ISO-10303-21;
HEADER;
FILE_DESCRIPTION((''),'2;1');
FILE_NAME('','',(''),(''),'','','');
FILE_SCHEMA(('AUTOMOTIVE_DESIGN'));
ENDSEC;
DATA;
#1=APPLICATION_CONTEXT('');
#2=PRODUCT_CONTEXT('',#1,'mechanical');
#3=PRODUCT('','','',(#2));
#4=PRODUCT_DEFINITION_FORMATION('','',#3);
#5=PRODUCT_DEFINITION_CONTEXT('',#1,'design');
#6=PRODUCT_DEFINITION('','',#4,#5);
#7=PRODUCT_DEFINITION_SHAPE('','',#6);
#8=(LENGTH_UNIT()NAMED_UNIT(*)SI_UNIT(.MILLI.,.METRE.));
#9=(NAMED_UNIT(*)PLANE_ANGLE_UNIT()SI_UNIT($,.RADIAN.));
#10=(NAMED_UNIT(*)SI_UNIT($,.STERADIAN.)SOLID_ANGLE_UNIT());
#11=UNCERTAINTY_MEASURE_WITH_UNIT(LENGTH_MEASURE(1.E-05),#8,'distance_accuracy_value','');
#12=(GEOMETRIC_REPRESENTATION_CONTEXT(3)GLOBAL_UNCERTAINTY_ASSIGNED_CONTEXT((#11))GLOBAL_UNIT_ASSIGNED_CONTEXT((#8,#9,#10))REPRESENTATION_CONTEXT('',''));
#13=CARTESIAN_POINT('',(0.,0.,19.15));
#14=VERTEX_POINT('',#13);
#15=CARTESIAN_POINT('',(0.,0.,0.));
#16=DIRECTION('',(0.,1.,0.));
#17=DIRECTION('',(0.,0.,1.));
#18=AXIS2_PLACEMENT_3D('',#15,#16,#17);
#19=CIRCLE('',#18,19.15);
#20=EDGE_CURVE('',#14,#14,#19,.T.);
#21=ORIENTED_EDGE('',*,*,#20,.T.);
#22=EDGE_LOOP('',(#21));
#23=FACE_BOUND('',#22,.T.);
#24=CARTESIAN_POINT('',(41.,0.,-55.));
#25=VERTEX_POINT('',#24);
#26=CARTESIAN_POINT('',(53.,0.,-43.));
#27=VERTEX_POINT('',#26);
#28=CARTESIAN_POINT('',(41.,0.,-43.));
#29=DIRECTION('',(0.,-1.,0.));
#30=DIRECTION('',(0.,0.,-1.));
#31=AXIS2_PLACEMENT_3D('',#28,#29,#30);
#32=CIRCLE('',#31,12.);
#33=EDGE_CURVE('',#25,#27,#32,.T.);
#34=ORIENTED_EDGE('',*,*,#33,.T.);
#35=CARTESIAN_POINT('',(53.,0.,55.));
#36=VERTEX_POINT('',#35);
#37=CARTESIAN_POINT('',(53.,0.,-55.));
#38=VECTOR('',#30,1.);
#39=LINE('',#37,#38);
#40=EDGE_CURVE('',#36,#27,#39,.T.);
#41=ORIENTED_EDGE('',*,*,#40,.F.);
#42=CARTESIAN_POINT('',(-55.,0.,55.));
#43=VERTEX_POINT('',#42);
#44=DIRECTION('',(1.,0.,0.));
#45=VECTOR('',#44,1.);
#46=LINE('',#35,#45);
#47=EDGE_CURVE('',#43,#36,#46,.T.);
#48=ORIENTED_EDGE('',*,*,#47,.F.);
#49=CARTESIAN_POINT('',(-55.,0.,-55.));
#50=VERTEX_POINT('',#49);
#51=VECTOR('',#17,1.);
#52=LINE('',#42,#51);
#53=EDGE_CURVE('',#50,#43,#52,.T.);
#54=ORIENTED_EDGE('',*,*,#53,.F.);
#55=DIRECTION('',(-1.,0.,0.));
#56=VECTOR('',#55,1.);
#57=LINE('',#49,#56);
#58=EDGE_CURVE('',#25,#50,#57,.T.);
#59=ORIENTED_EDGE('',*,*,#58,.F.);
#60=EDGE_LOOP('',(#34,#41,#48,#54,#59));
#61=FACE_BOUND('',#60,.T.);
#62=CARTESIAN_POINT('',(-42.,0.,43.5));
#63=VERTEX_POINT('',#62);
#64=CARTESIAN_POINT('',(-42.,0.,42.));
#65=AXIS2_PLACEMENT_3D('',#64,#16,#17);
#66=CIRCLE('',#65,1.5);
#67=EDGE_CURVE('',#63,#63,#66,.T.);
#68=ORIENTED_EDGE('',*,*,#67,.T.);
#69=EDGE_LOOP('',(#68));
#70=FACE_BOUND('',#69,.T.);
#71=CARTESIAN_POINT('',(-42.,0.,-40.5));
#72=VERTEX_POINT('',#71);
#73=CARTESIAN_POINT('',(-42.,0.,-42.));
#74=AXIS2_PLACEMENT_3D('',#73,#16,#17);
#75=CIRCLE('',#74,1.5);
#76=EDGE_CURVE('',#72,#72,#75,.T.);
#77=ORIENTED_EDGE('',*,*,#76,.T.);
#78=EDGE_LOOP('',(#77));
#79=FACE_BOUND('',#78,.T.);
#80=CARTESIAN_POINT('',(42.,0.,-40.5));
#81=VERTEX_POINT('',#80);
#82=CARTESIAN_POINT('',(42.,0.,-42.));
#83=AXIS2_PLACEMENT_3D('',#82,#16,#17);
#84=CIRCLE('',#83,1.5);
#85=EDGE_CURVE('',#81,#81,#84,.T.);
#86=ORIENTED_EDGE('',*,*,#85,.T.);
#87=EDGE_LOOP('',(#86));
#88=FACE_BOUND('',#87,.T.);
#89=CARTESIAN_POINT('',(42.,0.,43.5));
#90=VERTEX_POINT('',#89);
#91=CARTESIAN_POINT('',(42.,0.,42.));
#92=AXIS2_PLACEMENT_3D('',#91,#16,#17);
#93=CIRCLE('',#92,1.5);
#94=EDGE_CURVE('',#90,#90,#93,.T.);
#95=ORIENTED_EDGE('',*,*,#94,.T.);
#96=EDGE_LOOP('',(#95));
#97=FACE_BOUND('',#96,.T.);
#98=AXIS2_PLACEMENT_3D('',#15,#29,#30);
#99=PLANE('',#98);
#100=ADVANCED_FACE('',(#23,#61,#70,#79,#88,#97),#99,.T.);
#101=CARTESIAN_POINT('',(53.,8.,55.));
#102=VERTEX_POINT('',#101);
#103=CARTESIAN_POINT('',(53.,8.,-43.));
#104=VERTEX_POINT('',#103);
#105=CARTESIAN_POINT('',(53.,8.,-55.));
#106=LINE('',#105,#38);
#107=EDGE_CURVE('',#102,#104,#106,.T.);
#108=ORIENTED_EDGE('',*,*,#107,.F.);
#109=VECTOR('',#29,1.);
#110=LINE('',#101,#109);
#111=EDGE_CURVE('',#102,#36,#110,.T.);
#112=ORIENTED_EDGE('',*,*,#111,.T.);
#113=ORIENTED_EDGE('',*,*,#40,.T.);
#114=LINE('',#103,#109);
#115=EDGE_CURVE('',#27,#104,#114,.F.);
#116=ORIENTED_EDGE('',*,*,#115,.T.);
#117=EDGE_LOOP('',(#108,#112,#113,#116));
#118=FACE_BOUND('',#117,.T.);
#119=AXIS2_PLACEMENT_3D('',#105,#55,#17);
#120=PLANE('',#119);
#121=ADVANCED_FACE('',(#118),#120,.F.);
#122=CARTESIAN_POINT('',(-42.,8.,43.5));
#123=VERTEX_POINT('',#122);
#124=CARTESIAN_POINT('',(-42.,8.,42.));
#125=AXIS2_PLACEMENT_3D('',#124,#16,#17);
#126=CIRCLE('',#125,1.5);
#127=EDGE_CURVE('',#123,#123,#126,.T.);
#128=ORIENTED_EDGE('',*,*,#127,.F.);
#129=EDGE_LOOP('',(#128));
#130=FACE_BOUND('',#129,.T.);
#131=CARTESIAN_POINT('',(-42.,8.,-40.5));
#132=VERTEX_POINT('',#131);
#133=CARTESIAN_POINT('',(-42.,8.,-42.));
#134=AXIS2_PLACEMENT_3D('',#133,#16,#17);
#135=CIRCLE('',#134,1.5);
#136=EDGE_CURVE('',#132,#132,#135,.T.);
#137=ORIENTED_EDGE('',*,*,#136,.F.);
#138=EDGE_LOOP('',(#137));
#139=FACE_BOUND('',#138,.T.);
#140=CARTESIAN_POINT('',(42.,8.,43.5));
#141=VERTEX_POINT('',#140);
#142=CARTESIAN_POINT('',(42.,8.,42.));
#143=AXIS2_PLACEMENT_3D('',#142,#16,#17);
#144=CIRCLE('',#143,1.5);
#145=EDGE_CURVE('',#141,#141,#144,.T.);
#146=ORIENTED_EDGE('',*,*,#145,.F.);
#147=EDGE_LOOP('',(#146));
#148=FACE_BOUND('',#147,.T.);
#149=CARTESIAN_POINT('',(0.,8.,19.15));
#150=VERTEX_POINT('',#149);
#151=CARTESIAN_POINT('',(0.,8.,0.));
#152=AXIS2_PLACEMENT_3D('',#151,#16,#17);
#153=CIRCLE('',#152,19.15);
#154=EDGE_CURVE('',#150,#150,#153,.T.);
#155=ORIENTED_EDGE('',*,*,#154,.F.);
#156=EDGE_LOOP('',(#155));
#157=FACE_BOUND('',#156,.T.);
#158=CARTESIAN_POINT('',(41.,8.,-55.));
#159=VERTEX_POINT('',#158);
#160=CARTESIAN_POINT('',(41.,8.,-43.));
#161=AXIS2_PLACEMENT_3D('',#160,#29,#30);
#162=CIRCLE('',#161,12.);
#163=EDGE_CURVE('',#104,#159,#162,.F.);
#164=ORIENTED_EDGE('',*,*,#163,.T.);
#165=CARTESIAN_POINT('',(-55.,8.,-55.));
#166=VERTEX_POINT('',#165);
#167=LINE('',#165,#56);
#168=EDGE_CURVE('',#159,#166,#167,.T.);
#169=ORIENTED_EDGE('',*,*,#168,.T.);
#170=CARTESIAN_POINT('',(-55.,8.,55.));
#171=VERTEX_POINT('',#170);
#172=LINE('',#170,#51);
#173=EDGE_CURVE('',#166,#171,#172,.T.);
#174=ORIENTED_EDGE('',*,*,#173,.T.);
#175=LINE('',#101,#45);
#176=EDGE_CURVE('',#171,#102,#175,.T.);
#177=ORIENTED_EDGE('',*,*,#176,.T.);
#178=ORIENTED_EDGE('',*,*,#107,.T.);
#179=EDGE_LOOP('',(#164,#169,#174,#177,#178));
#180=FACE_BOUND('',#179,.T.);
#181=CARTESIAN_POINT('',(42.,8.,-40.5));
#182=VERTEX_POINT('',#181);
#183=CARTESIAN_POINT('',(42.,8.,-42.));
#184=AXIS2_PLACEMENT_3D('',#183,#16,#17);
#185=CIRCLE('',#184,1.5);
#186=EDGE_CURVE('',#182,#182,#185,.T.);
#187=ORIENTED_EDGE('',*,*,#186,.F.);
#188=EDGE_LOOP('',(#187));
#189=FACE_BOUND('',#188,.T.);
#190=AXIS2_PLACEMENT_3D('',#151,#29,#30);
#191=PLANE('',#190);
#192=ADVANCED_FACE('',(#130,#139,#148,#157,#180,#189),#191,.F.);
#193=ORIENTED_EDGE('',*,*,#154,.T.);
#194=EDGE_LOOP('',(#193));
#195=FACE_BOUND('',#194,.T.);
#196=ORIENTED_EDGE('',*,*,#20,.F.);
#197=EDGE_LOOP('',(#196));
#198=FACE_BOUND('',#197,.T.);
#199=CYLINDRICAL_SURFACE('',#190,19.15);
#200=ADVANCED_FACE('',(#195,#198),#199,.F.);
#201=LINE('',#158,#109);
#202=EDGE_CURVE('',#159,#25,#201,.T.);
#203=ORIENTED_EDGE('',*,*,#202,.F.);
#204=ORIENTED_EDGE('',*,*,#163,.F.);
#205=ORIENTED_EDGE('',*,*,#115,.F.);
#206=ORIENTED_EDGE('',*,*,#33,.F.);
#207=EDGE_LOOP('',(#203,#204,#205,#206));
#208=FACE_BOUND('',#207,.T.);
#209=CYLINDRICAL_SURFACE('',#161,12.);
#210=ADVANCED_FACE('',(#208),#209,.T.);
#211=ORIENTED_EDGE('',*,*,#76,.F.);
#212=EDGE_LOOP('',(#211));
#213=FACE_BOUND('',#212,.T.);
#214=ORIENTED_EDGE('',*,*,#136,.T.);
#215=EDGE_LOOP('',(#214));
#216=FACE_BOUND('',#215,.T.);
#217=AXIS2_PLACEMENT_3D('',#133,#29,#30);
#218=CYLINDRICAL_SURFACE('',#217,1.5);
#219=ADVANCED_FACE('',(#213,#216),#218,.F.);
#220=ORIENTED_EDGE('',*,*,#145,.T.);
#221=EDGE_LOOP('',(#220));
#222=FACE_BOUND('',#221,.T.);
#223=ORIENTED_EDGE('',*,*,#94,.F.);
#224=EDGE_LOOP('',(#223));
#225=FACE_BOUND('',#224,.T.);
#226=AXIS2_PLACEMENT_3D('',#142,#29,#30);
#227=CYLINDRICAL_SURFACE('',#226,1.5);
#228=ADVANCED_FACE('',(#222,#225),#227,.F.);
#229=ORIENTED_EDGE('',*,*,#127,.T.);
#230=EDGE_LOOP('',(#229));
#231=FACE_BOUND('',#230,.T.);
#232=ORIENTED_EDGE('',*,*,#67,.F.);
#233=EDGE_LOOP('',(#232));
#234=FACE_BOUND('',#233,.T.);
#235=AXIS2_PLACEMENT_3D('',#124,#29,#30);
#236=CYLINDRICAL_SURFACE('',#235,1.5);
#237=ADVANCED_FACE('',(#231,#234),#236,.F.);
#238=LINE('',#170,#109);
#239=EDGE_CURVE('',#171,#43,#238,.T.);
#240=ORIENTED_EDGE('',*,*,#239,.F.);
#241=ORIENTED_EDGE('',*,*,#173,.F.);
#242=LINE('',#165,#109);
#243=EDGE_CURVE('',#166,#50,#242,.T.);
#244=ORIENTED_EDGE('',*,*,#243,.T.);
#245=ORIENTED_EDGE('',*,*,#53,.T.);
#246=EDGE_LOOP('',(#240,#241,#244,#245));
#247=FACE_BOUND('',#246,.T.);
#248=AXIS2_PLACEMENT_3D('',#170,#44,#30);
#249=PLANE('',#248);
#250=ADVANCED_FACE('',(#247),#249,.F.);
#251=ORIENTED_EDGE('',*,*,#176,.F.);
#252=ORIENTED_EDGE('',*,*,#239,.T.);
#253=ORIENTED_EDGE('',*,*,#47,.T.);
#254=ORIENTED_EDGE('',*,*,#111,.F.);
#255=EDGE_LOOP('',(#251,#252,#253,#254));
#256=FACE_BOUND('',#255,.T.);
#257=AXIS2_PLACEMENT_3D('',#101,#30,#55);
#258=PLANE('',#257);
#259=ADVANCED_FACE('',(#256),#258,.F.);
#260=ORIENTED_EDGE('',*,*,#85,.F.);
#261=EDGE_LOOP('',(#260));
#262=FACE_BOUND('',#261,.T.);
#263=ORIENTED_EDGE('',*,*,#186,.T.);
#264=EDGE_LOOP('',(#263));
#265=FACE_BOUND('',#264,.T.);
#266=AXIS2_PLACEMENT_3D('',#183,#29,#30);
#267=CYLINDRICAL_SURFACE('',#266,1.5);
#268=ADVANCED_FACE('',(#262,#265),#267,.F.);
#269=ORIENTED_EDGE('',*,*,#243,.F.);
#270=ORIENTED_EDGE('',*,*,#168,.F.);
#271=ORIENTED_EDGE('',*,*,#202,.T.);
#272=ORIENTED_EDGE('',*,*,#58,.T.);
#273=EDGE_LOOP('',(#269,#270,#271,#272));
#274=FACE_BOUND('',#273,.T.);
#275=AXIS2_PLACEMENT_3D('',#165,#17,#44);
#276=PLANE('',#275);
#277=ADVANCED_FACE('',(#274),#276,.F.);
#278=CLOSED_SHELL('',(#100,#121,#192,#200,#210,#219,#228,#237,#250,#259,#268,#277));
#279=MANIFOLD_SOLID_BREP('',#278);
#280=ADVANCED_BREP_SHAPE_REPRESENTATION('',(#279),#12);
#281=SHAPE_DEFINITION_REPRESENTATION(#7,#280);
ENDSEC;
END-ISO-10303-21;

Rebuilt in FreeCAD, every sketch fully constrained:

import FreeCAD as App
import Part
import Sketcher
from FreeCAD import Vector
Q = App.Units.Quantity


def edges_at(feature, points):
    """Names of the edges that pass closest to the given points."""
    edges = feature.Shape.Edges
    near = lambda p: min(range(len(edges)), key=lambda i: edges[i].distToShape(Part.Vertex(*p))[0])
    return sorted({f"Edge{near(p) + 1}" for p in points})


def add_polygon(sketch, points):
    """Adds a closed chain of lines whose ends are joined by coincident constraints."""
    first, n = sketch.GeometryCount, len(points)
    for a, b in zip(points, points[1:] + points[:1]):
        sketch.addGeometry(Part.LineSegment(App.Vector(*a, 0), App.Vector(*b, 0)), False)
    for i in range(n):
        sketch.addConstraint(Sketcher.Constraint("Coincident", first + i, 2, first + (i + 1) % n, 1))

doc = App.newDocument("Part")
body = doc.addObject("PartDesign::Body", "Body")

# Sketch on XZ plane
sketch1 = body.newObject("Sketcher::SketchObject", "Sketch")
sketch1.AttachmentSupport = (doc.getObject("XZ_Plane"), [""])
sketch1.MapMode = "FlatFace"
add_polygon(sketch1, [(-55, -55), (-55, 55), (53, 55), (53, -55)])  # lines 0-3
sketch1.addGeometry(Part.Circle(Vector(-42, 42, 0), Vector(0, 0, 1), 1.5), False)  # 4
sketch1.addGeometry(Part.Circle(Vector(42, 42, 0), Vector(0, 0, 1), 1.5), False)  # 5
sketch1.addGeometry(Part.Circle(Vector(-42, -42, 0), Vector(0, 0, 1), 1.5), False)  # 6
sketch1.addGeometry(Part.Circle(Vector(0, 0, 0), Vector(0, 0, 1), 19.1), False)  # 7
sketch1.addGeometry(Part.Circle(Vector(42, -42, 0), Vector(0, 0, 1), 1.5), False)  # 8
sketch1.addConstraint([
    Sketcher.Constraint("Vertical", 0),
    Sketcher.Constraint("Horizontal", 1),
    Sketcher.Constraint("Vertical", 2),
    Sketcher.Constraint("Horizontal", 3),
    Sketcher.Constraint("Coincident", 7, 3, -1, 1),
    Sketcher.Constraint("Equal", 4, 5),
    Sketcher.Constraint("Equal", 5, 6),
    Sketcher.Constraint("Equal", 6, 8),
    Sketcher.Constraint("Symmetric", 5, 3, 6, 3, -1, 1),
    Sketcher.Constraint("Symmetric", 4, 3, 8, 3, -1, 1),
    Sketcher.Constraint("Symmetric", 4, 3, 5, 3, -2),
    Sketcher.Constraint("Diameter", 4, Q("3 mm")),
    Sketcher.Constraint("Diameter", 7, Q("38.3 mm")),
    Sketcher.Constraint("DistanceX", 1, 1, 1, 2, Q("108 mm")),
    Sketcher.Constraint("DistanceY", 0, 1, 0, 2, Q("110 mm")),
    Sketcher.Constraint("DistanceX", 4, 3, -1, 1, Q("42 mm")),
    Sketcher.Constraint("DistanceY", -1, 1, 4, 3, Q("42 mm")),
    Sketcher.Constraint("DistanceX", 0, 2, -1, 1, Q("55 mm")),
    Sketcher.Constraint("DistanceY", -1, 1, 0, 2, Q("55 mm")),
])
pad1 = body.newObject("PartDesign::Pad", "Pad")
pad1.Profile = sketch1
pad1.Length = 8
pad1.Reversed = True
doc.recompute()

fillet = body.newObject("PartDesign::Fillet", "Fillet")
fillet.Base = (pad1, edges_at(pad1, [(53, 4, -55)]))
fillet.Radius = 12

doc.recompute()
